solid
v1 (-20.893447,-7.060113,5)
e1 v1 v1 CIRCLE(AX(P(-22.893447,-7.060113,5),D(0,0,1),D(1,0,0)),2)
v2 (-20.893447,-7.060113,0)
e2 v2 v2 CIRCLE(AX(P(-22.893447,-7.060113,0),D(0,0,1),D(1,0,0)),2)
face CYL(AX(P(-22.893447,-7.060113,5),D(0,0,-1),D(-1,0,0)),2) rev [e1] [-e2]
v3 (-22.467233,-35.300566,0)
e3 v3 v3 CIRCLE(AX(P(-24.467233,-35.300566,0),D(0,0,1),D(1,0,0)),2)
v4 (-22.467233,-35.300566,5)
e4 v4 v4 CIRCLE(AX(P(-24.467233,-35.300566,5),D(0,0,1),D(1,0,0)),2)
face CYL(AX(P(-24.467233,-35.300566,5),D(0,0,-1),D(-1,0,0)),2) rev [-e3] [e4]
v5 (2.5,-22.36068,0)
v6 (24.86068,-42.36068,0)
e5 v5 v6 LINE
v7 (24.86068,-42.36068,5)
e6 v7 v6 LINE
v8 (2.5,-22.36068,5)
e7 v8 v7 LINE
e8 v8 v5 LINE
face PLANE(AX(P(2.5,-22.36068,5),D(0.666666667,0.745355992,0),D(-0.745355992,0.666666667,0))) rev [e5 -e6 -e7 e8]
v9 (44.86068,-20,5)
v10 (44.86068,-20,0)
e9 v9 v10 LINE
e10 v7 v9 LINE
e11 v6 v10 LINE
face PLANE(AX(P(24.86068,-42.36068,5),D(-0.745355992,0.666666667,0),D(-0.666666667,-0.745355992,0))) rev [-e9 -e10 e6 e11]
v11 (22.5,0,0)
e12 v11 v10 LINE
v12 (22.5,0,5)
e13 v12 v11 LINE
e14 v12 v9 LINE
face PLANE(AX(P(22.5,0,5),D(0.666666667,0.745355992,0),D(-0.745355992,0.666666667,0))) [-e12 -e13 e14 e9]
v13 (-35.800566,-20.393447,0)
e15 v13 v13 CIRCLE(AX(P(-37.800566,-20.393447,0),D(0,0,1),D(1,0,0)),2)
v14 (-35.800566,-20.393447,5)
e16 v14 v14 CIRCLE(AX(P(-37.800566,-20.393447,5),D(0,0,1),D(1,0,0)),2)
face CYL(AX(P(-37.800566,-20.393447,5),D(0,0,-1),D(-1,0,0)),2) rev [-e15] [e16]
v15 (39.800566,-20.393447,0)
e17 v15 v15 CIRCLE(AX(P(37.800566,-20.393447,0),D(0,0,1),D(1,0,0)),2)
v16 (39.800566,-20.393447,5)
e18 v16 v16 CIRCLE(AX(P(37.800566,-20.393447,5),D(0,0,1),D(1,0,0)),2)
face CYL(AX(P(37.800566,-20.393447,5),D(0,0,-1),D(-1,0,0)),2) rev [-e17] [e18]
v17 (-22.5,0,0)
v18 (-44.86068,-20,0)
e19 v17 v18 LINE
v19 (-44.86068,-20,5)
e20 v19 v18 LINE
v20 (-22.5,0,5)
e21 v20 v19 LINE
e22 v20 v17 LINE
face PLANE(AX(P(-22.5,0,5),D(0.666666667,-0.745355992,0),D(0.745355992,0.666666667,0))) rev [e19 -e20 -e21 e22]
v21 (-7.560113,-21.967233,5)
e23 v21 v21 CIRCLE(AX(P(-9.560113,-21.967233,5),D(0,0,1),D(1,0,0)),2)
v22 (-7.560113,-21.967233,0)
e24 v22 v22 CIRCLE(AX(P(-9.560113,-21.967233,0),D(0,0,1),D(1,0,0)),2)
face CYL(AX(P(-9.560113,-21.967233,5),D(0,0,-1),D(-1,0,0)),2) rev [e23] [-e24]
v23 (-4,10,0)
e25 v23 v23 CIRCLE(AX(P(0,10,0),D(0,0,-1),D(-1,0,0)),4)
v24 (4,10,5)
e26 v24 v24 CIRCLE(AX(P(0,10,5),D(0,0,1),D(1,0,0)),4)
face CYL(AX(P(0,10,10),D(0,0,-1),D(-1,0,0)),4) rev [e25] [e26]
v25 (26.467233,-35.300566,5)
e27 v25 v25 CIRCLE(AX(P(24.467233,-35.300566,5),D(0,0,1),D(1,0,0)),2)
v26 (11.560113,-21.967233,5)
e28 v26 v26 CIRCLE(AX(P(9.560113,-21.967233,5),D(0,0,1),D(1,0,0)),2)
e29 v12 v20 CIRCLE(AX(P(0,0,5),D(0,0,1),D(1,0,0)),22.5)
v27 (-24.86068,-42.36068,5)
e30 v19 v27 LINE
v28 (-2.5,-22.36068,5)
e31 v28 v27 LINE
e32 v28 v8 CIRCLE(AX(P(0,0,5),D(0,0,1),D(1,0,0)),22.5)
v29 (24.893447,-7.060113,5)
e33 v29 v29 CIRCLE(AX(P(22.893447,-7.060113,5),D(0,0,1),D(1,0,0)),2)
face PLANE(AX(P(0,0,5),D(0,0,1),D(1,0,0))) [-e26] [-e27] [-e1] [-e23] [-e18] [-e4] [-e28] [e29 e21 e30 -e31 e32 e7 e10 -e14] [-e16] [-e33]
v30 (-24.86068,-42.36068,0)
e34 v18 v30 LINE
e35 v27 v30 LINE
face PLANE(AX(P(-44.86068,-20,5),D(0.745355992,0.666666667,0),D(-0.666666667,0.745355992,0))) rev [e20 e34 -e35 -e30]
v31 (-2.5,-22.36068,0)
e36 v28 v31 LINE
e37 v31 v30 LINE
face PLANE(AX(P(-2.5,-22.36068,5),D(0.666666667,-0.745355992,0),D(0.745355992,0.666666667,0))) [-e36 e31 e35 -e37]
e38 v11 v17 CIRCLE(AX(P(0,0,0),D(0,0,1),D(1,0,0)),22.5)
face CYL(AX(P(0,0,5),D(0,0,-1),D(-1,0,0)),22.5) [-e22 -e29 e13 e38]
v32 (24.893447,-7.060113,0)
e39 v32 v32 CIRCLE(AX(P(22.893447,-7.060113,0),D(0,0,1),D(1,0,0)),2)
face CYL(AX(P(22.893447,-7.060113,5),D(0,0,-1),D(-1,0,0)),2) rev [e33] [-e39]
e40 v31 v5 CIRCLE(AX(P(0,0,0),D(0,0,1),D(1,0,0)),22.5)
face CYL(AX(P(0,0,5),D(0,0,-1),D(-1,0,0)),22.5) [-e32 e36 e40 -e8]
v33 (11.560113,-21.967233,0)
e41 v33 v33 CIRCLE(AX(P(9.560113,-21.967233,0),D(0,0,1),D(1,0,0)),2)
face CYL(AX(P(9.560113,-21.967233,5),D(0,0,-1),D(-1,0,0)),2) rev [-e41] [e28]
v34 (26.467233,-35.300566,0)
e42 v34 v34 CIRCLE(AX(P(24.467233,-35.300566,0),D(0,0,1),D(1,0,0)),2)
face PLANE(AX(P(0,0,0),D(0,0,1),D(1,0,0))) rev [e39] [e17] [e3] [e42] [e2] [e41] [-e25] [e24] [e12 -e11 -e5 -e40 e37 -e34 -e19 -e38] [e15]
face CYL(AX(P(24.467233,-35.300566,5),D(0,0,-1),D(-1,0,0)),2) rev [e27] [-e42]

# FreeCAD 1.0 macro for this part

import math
import FreeCAD as App
import Part
import Sketcher
from FreeCAD import Vector
Q = App.Units.Quantity

doc = App.newDocument("Part")
params = doc.addObject("Spreadsheet::Sheet", "Params")
for row, (alias, value) in enumerate([
    ("sketch1_radius", "22.5 mm"),
    ("sketch1_length", "30 mm"),
    ("pad1_length", "5 mm"),
    ("sketch2_diameter", "4 mm"),
    ("pocket1_length", "5 mm"),
    ("sketch3_diameter", "8 mm"),
    ("pocket2_length", "10 mm"),
], start=1):
    params.set(f"A{row}", alias)
    params.set(f"B{row}", "=" + value)
    params.setAlias(f"B{row}", alias)

body = doc.addObject("PartDesign::Body", "Body")

sketch1 = doc.addObject("Sketcher::SketchObject", "Sketch")
body.addObject(sketch1)
sketch1.AttachmentSupport = (doc.XY_Plane, [""])
sketch1.MapMode = "FlatFace"
sketch1.addGeometry([
    Part.LineSegment(Vector(-24.86068, -42.36068, 0), Vector(-2.5, -22.36068, 0)),
    Part.ArcOfCircle(Part.Circle(Vector(0, 0, 0), Vector(0, 0, 1), 22.5), math.radians(-96.37937), math.radians(-83.62063)),
    Part.LineSegment(Vector(2.5, -22.36068, 0), Vector(24.86068, -42.36068, 0)),
    Part.LineSegment(Vector(24.86068, -42.36068, 0), Vector(44.86068, -20, 0)),
    Part.LineSegment(Vector(44.86068, -20, 0), Vector(22.5, 0, 0)),
    Part.ArcOfCircle(Part.Circle(Vector(0, 0, 0), Vector(0, 0, 1), 22.5), math.radians(0), math.radians(180)),
    Part.LineSegment(Vector(-22.5, 0, 0), Vector(-44.86068, -20, 0)),
    Part.LineSegment(Vector(-44.86068, -20, 0), Vector(-24.86068, -42.36068, 0)),
], False)
sketch1.addConstraint([
    Sketcher.Constraint("Coincident", 0, 2, 1, 1),
    Sketcher.Constraint("Coincident", 1, 2, 2, 1),
    Sketcher.Constraint("Coincident", 2, 2, 3, 1),
    Sketcher.Constraint("Coincident", 3, 2, 4, 1),
    Sketcher.Constraint("Coincident", 4, 2, 5, 1),
    Sketcher.Constraint("Coincident", 5, 2, 6, 1),
    Sketcher.Constraint("Coincident", 6, 2, 7, 1),
    Sketcher.Constraint("Coincident", 7, 2, 0, 1),
    Sketcher.Constraint("Coincident", 1, 3, -1, 1),
    Sketcher.Constraint("Coincident", 5, 3, -1, 1),
    Sketcher.Constraint("Equal", 1, 5),
    Sketcher.Constraint("Symmetric", 3, 2, 6, 2, -2),
    Sketcher.Constraint("Symmetric", 2, 2, 7, 2, -2),
    Sketcher.Constraint("PointOnObject", 4, 2, -1),
    Sketcher.Constraint("PointOnObject", 5, 2, -1),
    Sketcher.Constraint("Perpendicular", 2, 3),
    Sketcher.Constraint("Perpendicular", 3, 4),
    Sketcher.Constraint("Parallel", 0, 6),
    Sketcher.Constraint("Equal", 2, 3),
    Sketcher.Constraint("Equal", 3, 4),
    Sketcher.Constraint("Radius", 1, Q("22.5 mm")),
    Sketcher.Constraint("Distance", 0, Q("30 mm")),
])
sketch1.setExpression("Constraints[20]", "Params.sketch1_radius")
sketch1.setExpression("Constraints[21]", "Params.sketch1_length")
pad1 = doc.addObject("PartDesign::Pad", "Pad")
body.addObject(pad1)
pad1.Profile = sketch1
pad1.setExpression("Length", "Params.pad1_length")

sketch2 = doc.addObject("Sketcher::SketchObject", "Sketch001")
body.addObject(sketch2)
sketch2.AttachmentSupport = (doc.XY_Plane, [""])
sketch2.MapMode = "FlatFace"
sketch2.addGeometry([
    Part.Circle(Vector(37.800566, -20.393447, 0), Vector(0, 0, 1), 2),
    Part.Circle(Vector(22.893447, -7.060113, 0), Vector(0, 0, 1), 2),
    Part.Circle(Vector(9.560113, -21.967233, 0), Vector(0, 0, 1), 2),
    Part.Circle(Vector(24.467233, -35.300566, 0), Vector(0, 0, 1), 2),
    Part.Circle(Vector(-24.467233, -35.300566, 0), Vector(0, 0, 1), 2),
    Part.Circle(Vector(-37.800566, -20.393447, 0), Vector(0, 0, 1), 2),
    Part.Circle(Vector(-9.560113, -21.967233, 0), Vector(0, 0, 1), 2),
    Part.Circle(Vector(-22.893447, -7.060113, 0), Vector(0, 0, 1), 2),
], False)
sketch2.addConstraint([
    Sketcher.Constraint("Equal", 0, 1),
    Sketcher.Constraint("Equal", 1, 2),
    Sketcher.Constraint("Equal", 2, 3),
    Sketcher.Constraint("Equal", 3, 4),
    Sketcher.Constraint("Equal", 4, 5),
    Sketcher.Constraint("Equal", 5, 6),
    Sketcher.Constraint("Equal", 6, 7),
    Sketcher.Constraint("Symmetric", 3, 3, 4, 3, -2),
    Sketcher.Constraint("Symmetric", 0, 3, 5, 3, -2),
    Sketcher.Constraint("Symmetric", 2, 3, 6, 3, -2),
    Sketcher.Constraint("Symmetric", 1, 3, 7, 3, -2),
    Sketcher.Constraint("Diameter", 0, Q("4 mm")),
    Sketcher.Constraint("DistanceX", 4, 3, 0, 3, Q("62.2678 mm")),
    Sketcher.Constraint("DistanceX", 1, 3, 0, 3, Q("14.90712 mm")),
    Sketcher.Constraint("DistanceY", 2, 3, 1, 3, Q("14.90712 mm")),
    Sketcher.Constraint("DistanceY", 3, 3, 0, 3, Q("14.90712 mm")),
    Sketcher.Constraint("DistanceX", 2, 3, 3, 3, Q("14.90712 mm")),
    Sketcher.Constraint("DistanceX", -1, 1, 0, 3, Q("37.800566 mm")),
    Sketcher.Constraint("DistanceY", 0, 3, -1, 1, Q("20.393447 mm")),
    Sketcher.Constraint("DistanceY", 1, 3, -1, 1, Q("7.060113 mm")),
])
sketch2.setExpression("Constraints[11]", "Params.sketch2_diameter")
pocket1 = doc.addObject("PartDesign::Pocket", "Pocket")
body.addObject(pocket1)
pocket1.Profile = sketch2
pocket1.setExpression("Length", "Params.pocket1_length")
pocket1.Reversed = True

sketch3 = doc.addObject("Sketcher::SketchObject", "Sketch002")
body.addObject(sketch3)
sketch3.AttachmentSupport = (doc.XY_Plane, [""])
sketch3.MapMode = "FlatFace"
sketch3.addGeometry(Part.Circle(Vector(0, 10, 0), Vector(0, 0, 1), 4), False)
sketch3.addConstraint([
    Sketcher.Constraint("PointOnObject", 0, 3, -2),
    Sketcher.Constraint("Diameter", 0, Q("8 mm")),
    Sketcher.Constraint("DistanceY", -1, 1, 0, 3, Q("10 mm")),
])
sketch3.setExpression("Constraints[1]", "Params.sketch3_diameter")
pocket2 = doc.addObject("PartDesign::Pocket", "Pocket001")
body.addObject(pocket2)
pocket2.Profile = sketch3
pocket2.setExpression("Length", "Params.pocket2_length")
pocket2.Reversed = True

doc.recompute()
